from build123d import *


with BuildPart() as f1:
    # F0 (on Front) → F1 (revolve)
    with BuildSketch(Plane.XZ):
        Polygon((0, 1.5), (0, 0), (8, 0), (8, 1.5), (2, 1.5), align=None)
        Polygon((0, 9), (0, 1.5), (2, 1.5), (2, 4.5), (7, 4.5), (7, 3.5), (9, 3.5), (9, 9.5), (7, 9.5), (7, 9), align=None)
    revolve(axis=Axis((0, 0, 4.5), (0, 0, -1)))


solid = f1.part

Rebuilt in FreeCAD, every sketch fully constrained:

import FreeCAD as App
import Part
import Sketcher

V = App.Vector

doc = App.newDocument("Part")
body = doc.addObject("PartDesign::Body", "Body")

sketch1 = body.newObject("Sketcher::SketchObject", "Sketch")
sketch1.AttachmentSupport = (doc.getObject("XZ_Plane"), [""])
sketch1.MapMode = "FlatFace"
sketch1.addGeometry(Part.LineSegment(V(0, 0, 0), V(8, 0, 0)), False)
sketch1.addGeometry(Part.LineSegment(V(8, 0, 0), V(8, 1.5, 0)), False)
sketch1.addGeometry(Part.LineSegment(V(8, 1.5, 0), V(2, 1.5, 0)), False)
sketch1.addGeometry(Part.LineSegment(V(2, 1.5, 0), V(2, 4.5, 0)), False)
sketch1.addGeometry(Part.LineSegment(V(2, 4.5, 0), V(7, 4.5, 0)), False)
sketch1.addGeometry(Part.LineSegment(V(7, 4.5, 0), V(7, 3.5, 0)), False)
sketch1.addGeometry(Part.LineSegment(V(7, 3.5, 0), V(9, 3.5, 0)), False)
sketch1.addGeometry(Part.LineSegment(V(9, 3.5, 0), V(9, 9.5, 0)), False)
sketch1.addGeometry(Part.LineSegment(V(9, 9.5, 0), V(7, 9.5, 0)), False)
sketch1.addGeometry(Part.LineSegment(V(7, 9.5, 0), V(7, 9, 0)), False)
sketch1.addGeometry(Part.LineSegment(V(7, 9, 0), V(0, 9, 0)), False)
sketch1.addGeometry(Part.LineSegment(V(0, 9, 0), V(0, 0, 0)), False)
sketch1.addConstraint(Sketcher.Constraint("Coincident", 0, 2, 1, 1))
sketch1.addConstraint(Sketcher.Constraint("Coincident", 1, 2, 2, 1))
sketch1.addConstraint(Sketcher.Constraint("Coincident", 2, 2, 3, 1))
sketch1.addConstraint(Sketcher.Constraint("Coincident", 3, 2, 4, 1))
sketch1.addConstraint(Sketcher.Constraint("Coincident", 4, 2, 5, 1))
sketch1.addConstraint(Sketcher.Constraint("Coincident", 5, 2, 6, 1))
sketch1.addConstraint(Sketcher.Constraint("Coincident", 6, 2, 7, 1))
sketch1.addConstraint(Sketcher.Constraint("Coincident", 7, 2, 8, 1))
sketch1.addConstraint(Sketcher.Constraint("Coincident", 8, 2, 9, 1))
sketch1.addConstraint(Sketcher.Constraint("Coincident", 9, 2, 10, 1))
sketch1.addConstraint(Sketcher.Constraint("Coincident", 10, 2, 11, 1))
sketch1.addConstraint(Sketcher.Constraint("Coincident", 11, 2, 0, 1))
sketch1.addConstraint(Sketcher.Constraint("Horizontal", 0))
sketch1.addConstraint(Sketcher.Constraint("Vertical", 1))
sketch1.addConstraint(Sketcher.Constraint("Horizontal", 2))
sketch1.addConstraint(Sketcher.Constraint("Vertical", 3))
sketch1.addConstraint(Sketcher.Constraint("Horizontal", 4))
sketch1.addConstraint(Sketcher.Constraint("Vertical", 5))
sketch1.addConstraint(Sketcher.Constraint("Horizontal", 6))
sketch1.addConstraint(Sketcher.Constraint("Vertical", 7))
sketch1.addConstraint(Sketcher.Constraint("Horizontal", 8))
sketch1.addConstraint(Sketcher.Constraint("Vertical", 9))
sketch1.addConstraint(Sketcher.Constraint("Horizontal", 10))
sketch1.addConstraint(Sketcher.Constraint("Vertical", 11))
sketch1.addConstraint(Sketcher.Constraint("Coincident", 11, 2, -1, 1))
sketch1.addConstraint(Sketcher.Constraint("Vertical", 5, 2, 8, 2))
sketch1.addConstraint(Sketcher.Constraint("Equal", 2, 7))
sketch1.addConstraint(Sketcher.Constraint("DistanceX", 0, 1, 0, 2, 8.0))
sketch1.addConstraint(Sketcher.Constraint("DistanceX", 2, 2, 2, 1, 6.0))
sketch1.addConstraint(Sketcher.Constraint("DistanceX", 4, 1, 4, 2, 5.0))
sketch1.addConstraint(Sketcher.Constraint("DistanceX", 6, 1, 6, 2, 2.0))
sketch1.addConstraint(Sketcher.Constraint("DistanceY", 3, 1, 3, 2, 3.0))
sketch1.addConstraint(Sketcher.Constraint("DistanceY", 5, 2, 5, 1, 1.0))
sketch1.addConstraint(Sketcher.Constraint("DistanceY", 11, 2, 11, 1, 9.0))
sketch1.addConstraint(Sketcher.Constraint("DistanceY", 1, 1, 1, 2, 1.5))
revolution = body.newObject("PartDesign::Revolution", "Revolution")
revolution.Profile = sketch1
revolution.ReferenceAxis = (sketch1, ["V_Axis"])
revolution.Angle = 360

doc.recompute()
